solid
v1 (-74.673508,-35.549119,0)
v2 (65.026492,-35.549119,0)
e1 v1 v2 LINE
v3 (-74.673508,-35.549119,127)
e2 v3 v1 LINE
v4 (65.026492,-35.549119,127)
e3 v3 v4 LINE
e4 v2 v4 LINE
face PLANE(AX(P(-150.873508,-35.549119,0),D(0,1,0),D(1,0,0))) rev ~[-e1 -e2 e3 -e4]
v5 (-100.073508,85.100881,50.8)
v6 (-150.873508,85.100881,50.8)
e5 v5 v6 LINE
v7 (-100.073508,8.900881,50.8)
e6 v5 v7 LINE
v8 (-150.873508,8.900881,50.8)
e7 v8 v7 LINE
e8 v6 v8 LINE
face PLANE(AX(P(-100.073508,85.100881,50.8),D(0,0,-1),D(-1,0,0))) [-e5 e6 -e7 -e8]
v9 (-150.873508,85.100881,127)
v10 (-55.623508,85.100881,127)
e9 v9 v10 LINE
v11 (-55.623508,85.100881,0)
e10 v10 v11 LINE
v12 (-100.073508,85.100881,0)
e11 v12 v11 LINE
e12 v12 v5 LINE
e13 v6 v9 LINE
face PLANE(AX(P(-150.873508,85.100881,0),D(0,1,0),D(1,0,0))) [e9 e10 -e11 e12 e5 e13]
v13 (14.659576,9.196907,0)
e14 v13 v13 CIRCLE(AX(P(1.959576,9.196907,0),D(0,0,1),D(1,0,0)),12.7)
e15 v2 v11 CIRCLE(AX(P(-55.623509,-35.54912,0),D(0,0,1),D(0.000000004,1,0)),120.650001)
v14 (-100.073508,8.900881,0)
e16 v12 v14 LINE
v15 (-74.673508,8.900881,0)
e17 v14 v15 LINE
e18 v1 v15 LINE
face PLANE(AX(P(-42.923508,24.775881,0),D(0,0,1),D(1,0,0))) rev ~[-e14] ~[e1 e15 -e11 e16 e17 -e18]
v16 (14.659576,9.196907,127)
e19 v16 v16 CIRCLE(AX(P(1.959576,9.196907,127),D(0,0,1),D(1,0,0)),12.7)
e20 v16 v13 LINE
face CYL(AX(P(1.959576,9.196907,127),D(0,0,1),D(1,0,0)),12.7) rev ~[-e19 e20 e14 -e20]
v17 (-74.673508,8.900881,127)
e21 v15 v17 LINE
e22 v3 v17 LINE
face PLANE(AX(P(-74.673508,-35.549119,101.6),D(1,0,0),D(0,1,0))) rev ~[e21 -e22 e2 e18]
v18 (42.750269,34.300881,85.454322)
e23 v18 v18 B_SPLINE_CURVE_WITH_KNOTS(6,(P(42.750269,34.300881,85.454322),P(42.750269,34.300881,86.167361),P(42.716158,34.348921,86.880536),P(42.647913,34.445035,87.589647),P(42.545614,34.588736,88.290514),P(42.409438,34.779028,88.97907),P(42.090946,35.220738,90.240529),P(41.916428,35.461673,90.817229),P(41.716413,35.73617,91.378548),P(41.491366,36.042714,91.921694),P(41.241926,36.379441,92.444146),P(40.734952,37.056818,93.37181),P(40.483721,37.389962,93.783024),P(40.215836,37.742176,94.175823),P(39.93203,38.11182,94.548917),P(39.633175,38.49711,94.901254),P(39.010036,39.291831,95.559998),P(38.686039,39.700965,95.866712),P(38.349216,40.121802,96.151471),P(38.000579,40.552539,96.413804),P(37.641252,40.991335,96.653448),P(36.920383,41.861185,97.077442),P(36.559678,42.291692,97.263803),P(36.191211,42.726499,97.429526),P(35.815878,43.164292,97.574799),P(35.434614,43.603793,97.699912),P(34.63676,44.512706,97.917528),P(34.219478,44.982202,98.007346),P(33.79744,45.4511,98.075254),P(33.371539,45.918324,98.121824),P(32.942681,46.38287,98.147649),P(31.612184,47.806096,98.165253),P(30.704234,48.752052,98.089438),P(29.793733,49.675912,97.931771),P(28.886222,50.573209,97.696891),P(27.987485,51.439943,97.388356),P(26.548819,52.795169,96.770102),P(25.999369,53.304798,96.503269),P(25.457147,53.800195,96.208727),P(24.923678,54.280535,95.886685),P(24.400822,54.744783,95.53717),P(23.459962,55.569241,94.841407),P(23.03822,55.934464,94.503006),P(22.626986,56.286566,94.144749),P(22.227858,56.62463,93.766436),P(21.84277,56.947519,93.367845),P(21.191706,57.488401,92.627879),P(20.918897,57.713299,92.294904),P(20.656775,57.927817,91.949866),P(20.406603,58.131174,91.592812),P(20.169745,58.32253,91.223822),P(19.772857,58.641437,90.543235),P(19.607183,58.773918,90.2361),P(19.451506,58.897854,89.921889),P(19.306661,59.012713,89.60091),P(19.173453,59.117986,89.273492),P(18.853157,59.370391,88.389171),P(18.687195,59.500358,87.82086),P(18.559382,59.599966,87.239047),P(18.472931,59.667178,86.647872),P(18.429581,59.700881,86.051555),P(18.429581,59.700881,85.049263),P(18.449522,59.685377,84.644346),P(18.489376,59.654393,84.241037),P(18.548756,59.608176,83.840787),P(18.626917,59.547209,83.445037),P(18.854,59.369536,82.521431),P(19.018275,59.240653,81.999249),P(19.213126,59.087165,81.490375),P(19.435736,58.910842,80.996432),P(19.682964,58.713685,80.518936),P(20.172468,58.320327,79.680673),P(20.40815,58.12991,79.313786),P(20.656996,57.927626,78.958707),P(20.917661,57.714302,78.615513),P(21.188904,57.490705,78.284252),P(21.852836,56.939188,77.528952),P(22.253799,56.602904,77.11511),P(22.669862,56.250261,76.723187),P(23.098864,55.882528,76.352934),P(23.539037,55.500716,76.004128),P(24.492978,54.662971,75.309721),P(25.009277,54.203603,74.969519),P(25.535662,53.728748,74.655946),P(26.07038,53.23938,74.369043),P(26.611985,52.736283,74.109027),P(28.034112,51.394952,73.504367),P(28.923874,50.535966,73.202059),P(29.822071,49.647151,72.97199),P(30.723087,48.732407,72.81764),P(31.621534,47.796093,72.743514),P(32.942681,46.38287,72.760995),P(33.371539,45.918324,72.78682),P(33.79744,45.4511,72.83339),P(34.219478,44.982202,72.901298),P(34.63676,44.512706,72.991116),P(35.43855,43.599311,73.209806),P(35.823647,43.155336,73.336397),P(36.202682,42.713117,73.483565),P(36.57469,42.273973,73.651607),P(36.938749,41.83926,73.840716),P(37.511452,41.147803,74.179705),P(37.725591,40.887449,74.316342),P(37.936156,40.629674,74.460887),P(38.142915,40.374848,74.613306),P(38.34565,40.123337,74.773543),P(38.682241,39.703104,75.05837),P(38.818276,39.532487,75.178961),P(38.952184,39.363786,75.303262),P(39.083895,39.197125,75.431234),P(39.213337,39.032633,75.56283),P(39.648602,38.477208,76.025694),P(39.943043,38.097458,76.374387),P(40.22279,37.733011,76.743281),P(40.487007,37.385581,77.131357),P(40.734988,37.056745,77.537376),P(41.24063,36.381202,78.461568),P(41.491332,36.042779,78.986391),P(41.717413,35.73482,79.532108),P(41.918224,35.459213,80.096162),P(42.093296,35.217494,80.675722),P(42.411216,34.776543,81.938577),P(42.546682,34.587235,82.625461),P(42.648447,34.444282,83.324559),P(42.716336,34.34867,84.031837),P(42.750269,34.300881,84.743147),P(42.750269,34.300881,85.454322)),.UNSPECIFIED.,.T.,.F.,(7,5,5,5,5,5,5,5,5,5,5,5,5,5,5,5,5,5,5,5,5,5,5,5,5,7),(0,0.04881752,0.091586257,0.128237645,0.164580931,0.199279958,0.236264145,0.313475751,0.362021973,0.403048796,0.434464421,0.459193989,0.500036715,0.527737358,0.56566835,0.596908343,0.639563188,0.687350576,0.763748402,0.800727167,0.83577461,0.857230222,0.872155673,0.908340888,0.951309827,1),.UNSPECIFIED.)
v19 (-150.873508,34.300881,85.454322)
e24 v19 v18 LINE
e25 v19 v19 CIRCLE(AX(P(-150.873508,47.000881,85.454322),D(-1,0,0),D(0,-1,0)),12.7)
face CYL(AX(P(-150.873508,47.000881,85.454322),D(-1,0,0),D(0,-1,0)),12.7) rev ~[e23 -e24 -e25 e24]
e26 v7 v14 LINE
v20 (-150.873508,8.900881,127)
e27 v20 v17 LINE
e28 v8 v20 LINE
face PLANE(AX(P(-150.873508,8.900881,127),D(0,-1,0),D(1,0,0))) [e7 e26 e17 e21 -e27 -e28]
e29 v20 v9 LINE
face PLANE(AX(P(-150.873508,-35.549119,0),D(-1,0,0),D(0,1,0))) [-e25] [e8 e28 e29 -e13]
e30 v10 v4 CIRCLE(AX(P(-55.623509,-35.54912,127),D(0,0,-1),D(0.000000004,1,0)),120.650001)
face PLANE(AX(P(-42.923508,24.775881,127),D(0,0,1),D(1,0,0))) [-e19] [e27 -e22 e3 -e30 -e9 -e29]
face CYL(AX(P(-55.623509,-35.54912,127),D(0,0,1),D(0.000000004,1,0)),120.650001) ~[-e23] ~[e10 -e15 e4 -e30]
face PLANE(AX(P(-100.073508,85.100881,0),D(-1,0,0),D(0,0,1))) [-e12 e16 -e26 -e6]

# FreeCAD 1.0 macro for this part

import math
import FreeCAD as App
import Part
import Sketcher

V = App.Vector
Q = App.Units.Quantity

doc = App.newDocument("Part")
body = doc.addObject("PartDesign::Body", "Body")

sketch1 = body.newObject("Sketcher::SketchObject", "Sketch")
sketch1.AttachmentSupport = (doc.getObject("XY_Plane"), [""])
sketch1.MapMode = "FlatFace"
sketch1.addGeometry(Part.LineSegment(V(-151, 85, 0), V(-151, -36, 0)), False)
sketch1.addGeometry(Part.LineSegment(V(-151, -36, 0), V(65, -36, 0)), False)
sketch1.addGeometry(Part.LineSegment(V(65, -36, 0), V(65, 85, 0)), False)
sketch1.addGeometry(Part.LineSegment(V(65, 85, 0), V(-151, 85, 0)), False)
sketch1.addConstraint(Sketcher.Constraint("Coincident", 0, 2, 1, 1))
sketch1.addConstraint(Sketcher.Constraint("Coincident", 1, 2, 2, 1))
sketch1.addConstraint(Sketcher.Constraint("Coincident", 2, 2, 3, 1))
sketch1.addConstraint(Sketcher.Constraint("Coincident", 3, 2, 0, 1))
sketch1.addConstraint(Sketcher.Constraint("Vertical", 0))
sketch1.addConstraint(Sketcher.Constraint("Horizontal", 1))
sketch1.addConstraint(Sketcher.Constraint("Vertical", 2))
sketch1.addConstraint(Sketcher.Constraint("Horizontal", 3))
sketch1.addConstraint(Sketcher.Constraint("DistanceX", 1, 1, 1, 2, Q("8.5 in")))
sketch1.addConstraint(Sketcher.Constraint("DistanceY", 0, 2, 0, 1, Q("4.75 in")))
sketch1.addConstraint(Sketcher.Constraint("DistanceY", 0, 2, -1, 1, Q("35.549119 mm")))
sketch1.addConstraint(Sketcher.Constraint("DistanceX", 0, 2, -1, 1, Q("150.873508 mm")))
pad1 = body.newObject("PartDesign::Pad", "Pad")
pad1.Profile = sketch1
pad1.Length = Q("5 in")

sketch2 = body.newObject("Sketcher::SketchObject", "Sketch001")
sketch2.AttachmentSupport = (doc.getObject("XY_Plane"), [""])
sketch2.MapMode = "FlatFace"
sketch2.AttachmentOffset = App.Placement(V(0, 0, 5 * 25.4), App.Rotation())
sketch2.addGeometry(Part.LineSegment(V(-151, 9, 0), V(-151, -36, 0)), False)
sketch2.addGeometry(Part.LineSegment(V(-151, -36, 0), V(-75, -36, 0)), False)
sketch2.addGeometry(Part.LineSegment(V(-75, -36, 0), V(-75, 9, 0)), False)
sketch2.addGeometry(Part.LineSegment(V(-75, 9, 0), V(-151, 9, 0)), False)
sketch2.addConstraint(Sketcher.Constraint("Coincident", 0, 2, 1, 1))
sketch2.addConstraint(Sketcher.Constraint("Coincident", 1, 2, 2, 1))
sketch2.addConstraint(Sketcher.Constraint("Coincident", 2, 2, 3, 1))
sketch2.addConstraint(Sketcher.Constraint("Coincident", 3, 2, 0, 1))
sketch2.addConstraint(Sketcher.Constraint("Vertical", 0))
sketch2.addConstraint(Sketcher.Constraint("Horizontal", 1))
sketch2.addConstraint(Sketcher.Constraint("Vertical", 2))
sketch2.addConstraint(Sketcher.Constraint("Horizontal", 3))
sketch2.addConstraint(Sketcher.Constraint("DistanceX", 1, 1, 1, 2, Q("3 in")))
sketch2.addConstraint(Sketcher.Constraint("DistanceY", 0, 2, 0, 1, Q("1.75 in")))
sketch2.addConstraint(Sketcher.Constraint("DistanceY", 0, 2, -1, 1, Q("35.549119 mm")))
sketch2.addConstraint(Sketcher.Constraint("DistanceX", 1, 2, -1, 1, Q("74.673508 mm")))
pocket1 = body.newObject("PartDesign::Pocket", "Pocket")
pocket1.Profile = sketch2
pocket1.Length = Q("1 in")

sketch3 = body.newObject("Sketcher::SketchObject", "Sketch002")
sketch3.AttachmentSupport = (doc.getObject("XY_Plane"), [""])
sketch3.MapMode = "FlatFace"
sketch3.AttachmentOffset = App.Placement(V(0, 0, 4 * 25.4), App.Rotation())
sketch3.addGeometry(Part.LineSegment(V(-151, 9, 0), V(-151, -36, 0)), False)
sketch3.addGeometry(Part.LineSegment(V(-151, -36, 0), V(-75, -36, 0)), False)
sketch3.addGeometry(Part.LineSegment(V(-75, -36, 0), V(-75, 9, 0)), False)
sketch3.addGeometry(Part.LineSegment(V(-75, 9, 0), V(-151, 9, 0)), False)
sketch3.addConstraint(Sketcher.Constraint("Coincident", 0, 2, 1, 1))
sketch3.addConstraint(Sketcher.Constraint("Coincident", 1, 2, 2, 1))
sketch3.addConstraint(Sketcher.Constraint("Coincident", 2, 2, 3, 1))
sketch3.addConstraint(Sketcher.Constraint("Coincident", 3, 2, 0, 1))
sketch3.addConstraint(Sketcher.Constraint("Vertical", 0))
sketch3.addConstraint(Sketcher.Constraint("Horizontal", 1))
sketch3.addConstraint(Sketcher.Constraint("Vertical", 2))
sketch3.addConstraint(Sketcher.Constraint("Horizontal", 3))
sketch3.addConstraint(Sketcher.Constraint("DistanceX", 1, 1, 1, 2, Q("3 in")))
sketch3.addConstraint(Sketcher.Constraint("DistanceY", 0, 2, 0, 1, Q("1.75 in")))
sketch3.addConstraint(Sketcher.Constraint("DistanceY", 0, 2, -1, 1, Q("35.549119 mm")))
sketch3.addConstraint(Sketcher.Constraint("DistanceX", 1, 2, -1, 1, Q("74.673508 mm")))
pocket2 = body.newObject("PartDesign::Pocket", "Pocket001")
pocket2.Profile = sketch3
pocket2.Type = "ThroughAll"

sketch4 = body.newObject("Sketcher::SketchObject", "Sketch003")
sketch4.AttachmentSupport = (doc.getObject("XY_Plane"), [""])
sketch4.MapMode = "FlatFace"
sketch4.AttachmentOffset = App.Placement(V(0, 0, 5 * 25.4), App.Rotation())
sketch4.addGeometry(Part.ArcOfCircle(Part.Circle(V(-56, -36, 0), V(0, 0, 1), 121), math.radians(0), math.radians(90)), False)
sketch4.addGeometry(Part.LineSegment(V(65, -36, 0), V(65, 85, 0)), False)
sketch4.addGeometry(Part.LineSegment(V(65, 85, 0), V(-56, 85, 0)), False)
sketch4.addConstraint(Sketcher.Constraint("Tangent", 0, 1, 1, 1))
sketch4.addConstraint(Sketcher.Constraint("Coincident", 1, 2, 2, 1))
sketch4.addConstraint(Sketcher.Constraint("Tangent", 2, 2, 0, 2))
sketch4.addConstraint(Sketcher.Constraint("Vertical", 1))
sketch4.addConstraint(Sketcher.Constraint("Horizontal", 2))
sketch4.addConstraint(Sketcher.Constraint("Radius", 0, Q("4.75 in")))
sketch4.addConstraint(Sketcher.Constraint("DistanceX", 0, 3, -1, 1, Q("55.623509 mm")))
sketch4.addConstraint(Sketcher.Constraint("DistanceY", 0, 3, -1, 1, Q("35.54912 mm")))
pocket3 = body.newObject("PartDesign::Pocket", "Pocket002")
pocket3.Profile = sketch4
pocket3.Type = "ThroughAll"

sketch5 = body.newObject("Sketcher::SketchObject", "Sketch004")
sketch5.AttachmentSupport = (doc.getObject("XZ_Plane"), [""])
sketch5.MapMode = "FlatFace"
sketch5.AttachmentOffset = App.Placement(V(0, 0, -85.100881), App.Rotation())
sketch5.addGeometry(Part.LineSegment(V(-100, 51, 0), V(-100, 0, 0)), False)
sketch5.addGeometry(Part.LineSegment(V(-100, 0, 0), V(-151, 0, 0)), False)
sketch5.addGeometry(Part.LineSegment(V(-151, 0, 0), V(-151, 51, 0)), False)
sketch5.addGeometry(Part.LineSegment(V(-151, 51, 0), V(-100, 51, 0)), False)
sketch5.addConstraint(Sketcher.Constraint("Coincident", 0, 2, 1, 1))
sketch5.addConstraint(Sketcher.Constraint("Coincident", 1, 2, 2, 1))
sketch5.addConstraint(Sketcher.Constraint("Coincident", 2, 2, 3, 1))
sketch5.addConstraint(Sketcher.Constraint("Coincident", 3, 2, 0, 1))
sketch5.addConstraint(Sketcher.Constraint("Vertical", 0))
sketch5.addConstraint(Sketcher.Constraint("Horizontal", 1))
sketch5.addConstraint(Sketcher.Constraint("Vertical", 2))
sketch5.addConstraint(Sketcher.Constraint("Horizontal", 3))
sketch5.addConstraint(Sketcher.Constraint("PointOnObject", 0, 2, -1))
sketch5.addConstraint(Sketcher.Constraint("Equal", 3, 0))
sketch5.addConstraint(Sketcher.Constraint("DistanceX", 1, 2, 1, 1, Q("2 in")))
sketch5.addConstraint(Sketcher.Constraint("DistanceX", 0, 2, -1, 1, Q("100.073508 mm")))
pocket4 = body.newObject("PartDesign::Pocket", "Pocket003")
pocket4.Profile = sketch5
pocket4.Type = "ThroughAll"
pocket4.Reversed = True

sketch6 = body.newObject("Sketcher::SketchObject", "Sketch005")
sketch6.AttachmentSupport = (doc.getObject("YZ_Plane"), [""])
sketch6.MapMode = "FlatFace"
sketch6.AttachmentOffset = App.Placement(V(0, 0, -150.873508), App.Rotation())
sketch6.addGeometry(Part.Circle(V(47, 85, 0), V(0, 0, 1), 13), False)
sketch6.addConstraint(Sketcher.Constraint("Diameter", 0, Q("1 in")))
sketch6.addConstraint(Sketcher.Constraint("DistanceX", -1, 1, 0, 3, Q("47.000881 mm")))
sketch6.addConstraint(Sketcher.Constraint("DistanceY", -1, 1, 0, 3, Q("85.454322 mm")))
pocket5 = body.newObject("PartDesign::Pocket", "Pocket004")
pocket5.Profile = sketch6
pocket5.Type = "ThroughAll"
pocket5.Reversed = True

sketch7 = body.newObject("Sketcher::SketchObject", "Sketch006")
sketch7.AttachmentSupport = (doc.getObject("XY_Plane"), [""])
sketch7.MapMode = "FlatFace"
sketch7.AttachmentOffset = App.Placement(V(0, 0, 5 * 25.4), App.Rotation())
sketch7.addGeometry(Part.Circle(V(2, 9, 0), V(0, 0, 1), 13), False)
sketch7.addConstraint(Sketcher.Constraint("Diameter", 0, Q("1 in")))
sketch7.addConstraint(Sketcher.Constraint("DistanceX", -1, 1, 0, 3, Q("1.959576 mm")))
sketch7.addConstraint(Sketcher.Constraint("DistanceY", -1, 1, 0, 3, Q("9.196907 mm")))
pocket6 = body.newObject("PartDesign::Pocket", "Pocket005")
pocket6.Profile = sketch7
pocket6.Type = "ThroughAll"

doc.recompute()
